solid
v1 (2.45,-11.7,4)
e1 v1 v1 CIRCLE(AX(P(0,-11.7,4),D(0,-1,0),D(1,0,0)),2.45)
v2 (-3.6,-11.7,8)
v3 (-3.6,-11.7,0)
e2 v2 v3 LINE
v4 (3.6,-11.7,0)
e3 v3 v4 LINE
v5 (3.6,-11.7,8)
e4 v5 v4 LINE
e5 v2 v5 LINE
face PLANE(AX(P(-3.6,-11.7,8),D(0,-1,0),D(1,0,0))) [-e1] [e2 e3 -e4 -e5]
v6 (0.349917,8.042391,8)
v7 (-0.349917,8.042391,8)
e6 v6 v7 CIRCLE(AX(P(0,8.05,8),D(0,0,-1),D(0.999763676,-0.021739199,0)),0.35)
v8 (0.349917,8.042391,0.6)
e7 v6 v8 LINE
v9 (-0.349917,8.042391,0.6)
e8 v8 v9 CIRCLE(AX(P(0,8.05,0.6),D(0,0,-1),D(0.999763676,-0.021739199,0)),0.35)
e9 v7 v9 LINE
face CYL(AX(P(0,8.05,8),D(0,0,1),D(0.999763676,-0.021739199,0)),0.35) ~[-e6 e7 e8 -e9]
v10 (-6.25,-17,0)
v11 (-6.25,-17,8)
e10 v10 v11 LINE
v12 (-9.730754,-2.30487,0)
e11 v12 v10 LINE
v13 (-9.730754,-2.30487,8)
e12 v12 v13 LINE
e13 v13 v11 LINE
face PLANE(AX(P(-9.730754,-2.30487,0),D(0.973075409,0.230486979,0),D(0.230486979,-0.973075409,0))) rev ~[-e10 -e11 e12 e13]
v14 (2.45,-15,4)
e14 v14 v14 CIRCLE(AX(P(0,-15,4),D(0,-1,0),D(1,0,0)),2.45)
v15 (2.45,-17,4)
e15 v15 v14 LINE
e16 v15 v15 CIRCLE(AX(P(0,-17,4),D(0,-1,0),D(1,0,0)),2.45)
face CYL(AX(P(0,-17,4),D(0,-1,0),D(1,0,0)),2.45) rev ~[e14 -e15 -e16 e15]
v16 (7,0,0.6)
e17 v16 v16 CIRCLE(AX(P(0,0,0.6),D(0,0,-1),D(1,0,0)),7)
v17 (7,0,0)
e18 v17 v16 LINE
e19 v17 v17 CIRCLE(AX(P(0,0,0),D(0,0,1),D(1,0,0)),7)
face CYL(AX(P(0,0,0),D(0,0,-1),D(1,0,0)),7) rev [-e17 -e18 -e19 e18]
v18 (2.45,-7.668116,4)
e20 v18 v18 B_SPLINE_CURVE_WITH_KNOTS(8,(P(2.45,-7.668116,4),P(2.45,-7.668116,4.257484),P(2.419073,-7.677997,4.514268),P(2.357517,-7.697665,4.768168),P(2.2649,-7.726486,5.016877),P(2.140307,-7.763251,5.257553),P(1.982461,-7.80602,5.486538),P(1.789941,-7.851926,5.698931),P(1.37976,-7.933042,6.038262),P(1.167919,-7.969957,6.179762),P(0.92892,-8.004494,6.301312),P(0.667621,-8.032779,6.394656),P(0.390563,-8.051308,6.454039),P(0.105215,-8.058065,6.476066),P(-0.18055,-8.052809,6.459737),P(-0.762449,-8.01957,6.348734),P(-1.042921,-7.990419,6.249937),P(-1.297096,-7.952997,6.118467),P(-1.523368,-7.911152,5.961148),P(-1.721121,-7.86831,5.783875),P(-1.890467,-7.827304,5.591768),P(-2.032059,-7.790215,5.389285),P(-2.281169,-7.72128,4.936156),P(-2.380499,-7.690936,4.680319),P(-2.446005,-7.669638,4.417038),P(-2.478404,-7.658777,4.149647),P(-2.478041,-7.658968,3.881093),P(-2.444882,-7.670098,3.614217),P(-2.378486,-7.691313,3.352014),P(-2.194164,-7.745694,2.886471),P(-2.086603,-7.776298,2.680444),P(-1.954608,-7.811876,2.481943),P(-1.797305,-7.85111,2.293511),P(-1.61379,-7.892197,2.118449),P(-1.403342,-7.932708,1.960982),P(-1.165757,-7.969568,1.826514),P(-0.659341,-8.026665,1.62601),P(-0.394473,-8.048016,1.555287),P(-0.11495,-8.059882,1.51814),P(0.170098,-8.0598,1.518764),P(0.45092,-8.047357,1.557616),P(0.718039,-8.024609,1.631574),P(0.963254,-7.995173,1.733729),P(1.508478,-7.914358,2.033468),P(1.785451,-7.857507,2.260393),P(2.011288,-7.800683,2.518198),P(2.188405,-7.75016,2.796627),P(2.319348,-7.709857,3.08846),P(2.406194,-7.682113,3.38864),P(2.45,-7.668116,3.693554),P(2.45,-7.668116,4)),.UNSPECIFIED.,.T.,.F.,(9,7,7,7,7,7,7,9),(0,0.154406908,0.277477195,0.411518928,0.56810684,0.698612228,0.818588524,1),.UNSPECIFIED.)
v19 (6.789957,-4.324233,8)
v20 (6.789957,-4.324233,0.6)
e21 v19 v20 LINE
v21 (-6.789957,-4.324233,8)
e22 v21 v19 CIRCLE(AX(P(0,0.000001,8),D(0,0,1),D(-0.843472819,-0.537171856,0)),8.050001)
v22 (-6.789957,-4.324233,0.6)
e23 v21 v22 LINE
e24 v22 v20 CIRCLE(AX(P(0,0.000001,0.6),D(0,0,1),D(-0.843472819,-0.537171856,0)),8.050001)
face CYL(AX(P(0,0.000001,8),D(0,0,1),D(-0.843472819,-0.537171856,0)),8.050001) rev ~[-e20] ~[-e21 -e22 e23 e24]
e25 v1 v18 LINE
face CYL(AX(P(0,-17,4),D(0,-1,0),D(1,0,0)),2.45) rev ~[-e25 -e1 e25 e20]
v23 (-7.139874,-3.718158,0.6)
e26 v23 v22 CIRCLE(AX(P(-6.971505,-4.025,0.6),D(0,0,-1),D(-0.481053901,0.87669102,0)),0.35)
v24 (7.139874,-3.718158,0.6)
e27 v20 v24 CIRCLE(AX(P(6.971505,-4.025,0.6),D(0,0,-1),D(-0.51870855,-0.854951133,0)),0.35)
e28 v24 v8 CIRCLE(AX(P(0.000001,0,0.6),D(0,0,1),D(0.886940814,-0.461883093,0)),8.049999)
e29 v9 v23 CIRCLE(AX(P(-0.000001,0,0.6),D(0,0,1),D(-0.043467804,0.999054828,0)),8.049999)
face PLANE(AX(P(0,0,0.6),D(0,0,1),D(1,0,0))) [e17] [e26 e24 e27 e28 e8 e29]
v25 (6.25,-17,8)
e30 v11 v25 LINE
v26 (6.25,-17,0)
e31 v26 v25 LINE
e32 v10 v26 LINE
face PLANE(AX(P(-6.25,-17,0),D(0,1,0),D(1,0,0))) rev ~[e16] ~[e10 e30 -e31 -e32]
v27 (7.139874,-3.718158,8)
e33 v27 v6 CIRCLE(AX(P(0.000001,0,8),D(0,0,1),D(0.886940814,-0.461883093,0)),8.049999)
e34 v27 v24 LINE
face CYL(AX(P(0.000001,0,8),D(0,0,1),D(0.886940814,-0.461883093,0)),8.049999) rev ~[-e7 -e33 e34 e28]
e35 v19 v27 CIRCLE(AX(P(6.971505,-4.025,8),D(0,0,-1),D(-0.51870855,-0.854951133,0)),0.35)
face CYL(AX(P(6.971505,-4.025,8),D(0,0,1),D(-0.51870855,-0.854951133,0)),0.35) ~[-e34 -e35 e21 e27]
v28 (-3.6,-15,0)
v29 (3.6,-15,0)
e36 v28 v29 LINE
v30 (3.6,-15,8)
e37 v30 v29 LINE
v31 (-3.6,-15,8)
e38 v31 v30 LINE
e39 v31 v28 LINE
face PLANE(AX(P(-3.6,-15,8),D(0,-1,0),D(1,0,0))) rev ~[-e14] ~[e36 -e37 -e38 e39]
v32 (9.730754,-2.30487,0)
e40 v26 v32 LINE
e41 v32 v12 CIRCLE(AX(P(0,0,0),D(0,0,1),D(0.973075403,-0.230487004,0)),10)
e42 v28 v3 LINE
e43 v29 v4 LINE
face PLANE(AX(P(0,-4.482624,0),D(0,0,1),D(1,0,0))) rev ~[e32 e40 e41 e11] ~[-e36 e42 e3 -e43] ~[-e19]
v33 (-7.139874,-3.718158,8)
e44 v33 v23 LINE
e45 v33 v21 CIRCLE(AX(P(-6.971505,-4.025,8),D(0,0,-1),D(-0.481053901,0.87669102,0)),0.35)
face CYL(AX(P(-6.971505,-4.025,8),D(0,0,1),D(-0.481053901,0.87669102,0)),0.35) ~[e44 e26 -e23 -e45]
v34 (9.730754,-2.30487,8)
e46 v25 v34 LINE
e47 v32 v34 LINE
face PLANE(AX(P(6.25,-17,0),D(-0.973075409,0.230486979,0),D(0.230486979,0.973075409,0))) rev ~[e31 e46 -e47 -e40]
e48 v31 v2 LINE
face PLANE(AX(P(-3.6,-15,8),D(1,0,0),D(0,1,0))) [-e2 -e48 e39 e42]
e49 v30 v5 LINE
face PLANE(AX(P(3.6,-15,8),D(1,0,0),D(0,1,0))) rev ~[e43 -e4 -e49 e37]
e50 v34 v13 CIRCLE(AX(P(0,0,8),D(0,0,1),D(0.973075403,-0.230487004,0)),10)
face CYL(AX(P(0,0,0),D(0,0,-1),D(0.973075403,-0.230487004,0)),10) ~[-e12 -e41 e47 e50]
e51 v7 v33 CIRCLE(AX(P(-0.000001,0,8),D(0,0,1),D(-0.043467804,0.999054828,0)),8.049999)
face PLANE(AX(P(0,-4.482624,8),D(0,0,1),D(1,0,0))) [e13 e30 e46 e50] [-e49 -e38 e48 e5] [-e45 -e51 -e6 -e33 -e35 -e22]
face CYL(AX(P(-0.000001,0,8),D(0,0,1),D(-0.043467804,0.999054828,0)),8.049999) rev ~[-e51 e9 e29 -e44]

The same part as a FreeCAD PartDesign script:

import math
import FreeCAD as App
import Part
import Sketcher
from FreeCAD import Vector

doc = App.newDocument("Part")
params = doc.addObject("Spreadsheet::Sheet", "Params")
for row, (alias, value) in enumerate([
    ("sketch1_diameter", "14 mm"),
    ("sketch1_radius", "10 mm"),
    ("sketch1_width", "12.5 mm"),
    ("pad1_length", "8 mm"),
    ("sketch2_radius", "0.35 mm"),
    ("sketch2_radius2", "8.049999 mm"),
    ("pocket1_length", "7.4 mm"),
    ("sketch3_diameter", "4.9 mm"),
    ("pocket2_length", "12 mm"),
    ("sketch4_width", "7.2 mm"),
    ("sketch4_height", "3.3 mm"),
], start=1):
    params.set(f"A{row}", alias)
    params.set(f"B{row}", "=" + value)
    params.setAlias(f"B{row}", alias)

body = doc.addObject("PartDesign::Body", "Body")

sketch1 = body.newObject("Sketcher::SketchObject", "Sketch")
sketch1.AttachmentSupport = (doc.getObject("XY_Plane"), [""])
sketch1.MapMode = "FlatFace"
sketch1.addGeometry(Part.LineSegment(Vector(6, -17, 0), Vector(10, -2, 0)), False)
sketch1.addGeometry(Part.ArcOfCircle(Part.Circle(Vector(0, 0, 0), Vector(0, 0, 1), 10), math.radians(-13), math.radians(193)), False)
sketch1.addGeometry(Part.LineSegment(Vector(-10, -2, 0), Vector(-6, -17, 0)), False)
sketch1.addGeometry(Part.LineSegment(Vector(-6, -17, 0), Vector(6, -17, 0)), False)
sketch1.addGeometry(Part.Circle(Vector(0, 0, 0), Vector(0, 0, 1), 7), False)
sketch1.addConstraint(Sketcher.Constraint("Tangent", 0, 2, 1, 1))
sketch1.addConstraint(Sketcher.Constraint("Tangent", 1, 2, 2, 1))
sketch1.addConstraint(Sketcher.Constraint("Coincident", 2, 2, 3, 1))
sketch1.addConstraint(Sketcher.Constraint("Coincident", 3, 2, 0, 1))
sketch1.addConstraint(Sketcher.Constraint("Horizontal", 3))
sketch1.addConstraint(Sketcher.Constraint("Coincident", 1, 3, -1, 1))
sketch1.addConstraint(Sketcher.Constraint("Coincident", 4, 3, -1, 1))
sketch1.addConstraint(Sketcher.Constraint("Horizontal", 0, 2, 1, 2))
sketch1.addConstraint(Sketcher.Constraint("Diameter", 4, 14.0))
sketch1.addConstraint(Sketcher.Constraint("Radius", 1, 10.0))
sketch1.addConstraint(Sketcher.Constraint("DistanceX", 3, 1, 3, 2, 12.5))
sketch1.addConstraint(Sketcher.Constraint("DistanceY", 2, 2, -1, 1, 17.0))
sketch1.setExpression("Constraints[8]", "Params.sketch1_diameter")
sketch1.setExpression("Constraints[9]", "Params.sketch1_radius")
sketch1.setExpression("Constraints[10]", "Params.sketch1_width")
pad1 = body.newObject("PartDesign::Pad", "Pad")
pad1.Profile = sketch1
pad1.setExpression("Length", "Params.pad1_length")

sketch2 = body.newObject("Sketcher::SketchObject", "Sketch001")
sketch2.AttachmentSupport = (doc.getObject("XY_Plane"), [""])
sketch2.MapMode = "FlatFace"
sketch2.AttachmentOffset = App.Placement(Vector(0, 0, 8), App.Rotation())
sketch2.addGeometry(Part.ArcOfCircle(Part.Circle(Vector(0, 8.05, 0), Vector(0, 0, 1), 0.35), math.radians(-179), math.radians(-1)), False)
sketch2.addGeometry(Part.ArcOfCircle(Part.Circle(Vector(0, 0, 0), Vector(0, 0, 1), 8.05), math.radians(92), math.radians(208)), False)
sketch2.addGeometry(Part.ArcOfCircle(Part.Circle(Vector(-6.97, -4.02, 0), Vector(0, 0, 1), 0.35), math.radians(-59), math.radians(119)), False)
sketch2.addGeometry(Part.ArcOfCircle(Part.Circle(Vector(0, 0, 0), Vector(0, 0, 1), 8.05), math.radians(-148), math.radians(-32)), False)
sketch2.addGeometry(Part.ArcOfCircle(Part.Circle(Vector(6.97, -4.02, 0), Vector(0, 0, 1), 0.35), math.radians(61), math.radians(239)), False)
sketch2.addGeometry(Part.ArcOfCircle(Part.Circle(Vector(0, 0, 0), Vector(0, 0, 1), 8.05), math.radians(-28), math.radians(88)), False)
sketch2.addConstraint(Sketcher.Constraint("Coincident", 0, 1, 1, 1))
sketch2.addConstraint(Sketcher.Constraint("Coincident", 1, 2, 2, 2))
sketch2.addConstraint(Sketcher.Constraint("Coincident", 2, 1, 3, 1))
sketch2.addConstraint(Sketcher.Constraint("Coincident", 3, 2, 4, 2))
sketch2.addConstraint(Sketcher.Constraint("Coincident", 4, 1, 5, 1))
sketch2.addConstraint(Sketcher.Constraint("Coincident", 5, 2, 0, 2))
sketch2.addConstraint(Sketcher.Constraint("Coincident", 1, 3, -1, 1))
sketch2.addConstraint(Sketcher.Constraint("Coincident", 3, 3, -1, 1))
sketch2.addConstraint(Sketcher.Constraint("Coincident", 5, 3, -1, 1))
sketch2.addConstraint(Sketcher.Constraint("Equal", 0, 2))
sketch2.addConstraint(Sketcher.Constraint("Equal", 1, 3))
sketch2.addConstraint(Sketcher.Constraint("Equal", 2, 4))
sketch2.addConstraint(Sketcher.Constraint("Equal", 3, 5))
sketch2.addConstraint(Sketcher.Constraint("Symmetric", 2, 3, 4, 3, -2))
sketch2.addConstraint(Sketcher.Constraint("PointOnObject", 0, 3, -2))
sketch2.addConstraint(Sketcher.Constraint("Radius", 0, 0.35))
sketch2.addConstraint(Sketcher.Constraint("Radius", 1, 8.049999))
sketch2.addConstraint(Sketcher.Constraint("DistanceY", -1, 1, 0, 3, 8.05))
sketch2.addConstraint(Sketcher.Constraint("DistanceY", 2, 3, -1, 1, 4.025))
sketch2.addConstraint(Sketcher.Constraint("DistanceY", 4, 1, -1, 1, 3.718158))
sketch2.setExpression("Constraints[15]", "Params.sketch2_radius")
sketch2.setExpression("Constraints[16]", "Params.sketch2_radius2")
pocket1 = body.newObject("PartDesign::Pocket", "Pocket")
pocket1.Profile = sketch2
pocket1.setExpression("Length", "Params.pocket1_length")

sketch3 = body.newObject("Sketcher::SketchObject", "Sketch002")
sketch3.AttachmentSupport = (doc.getObject("XZ_Plane"), [""])
sketch3.MapMode = "FlatFace"
sketch3.AttachmentOffset = App.Placement(Vector(0, 0, 17), App.Rotation())
sketch3.addGeometry(Part.Circle(Vector(0, 4, 0), Vector(0, 0, 1), 2.5), False)
sketch3.addConstraint(Sketcher.Constraint("PointOnObject", 0, 3, -2))
sketch3.addConstraint(Sketcher.Constraint("Diameter", 0, 4.9))
sketch3.addConstraint(Sketcher.Constraint("DistanceY", -1, 1, 0, 3, 4.0))
sketch3.setExpression("Constraints[1]", "Params.sketch3_diameter")
pocket2 = body.newObject("PartDesign::Pocket", "Pocket001")
pocket2.Profile = sketch3
pocket2.setExpression("Length", "Params.pocket2_length")

sketch4 = body.newObject("Sketcher::SketchObject", "Sketch003")
sketch4.AttachmentSupport = (doc.getObject("XY_Plane"), [""])
sketch4.MapMode = "FlatFace"
sketch4.AttachmentOffset = App.Placement(Vector(0, 0, 8), App.Rotation())
sketch4.addGeometry(Part.LineSegment(Vector(-3.6, -11.7, 0), Vector(-3.6, -15, 0)), False)
sketch4.addGeometry(Part.LineSegment(Vector(-3.6, -15, 0), Vector(3.6, -15, 0)), False)
sketch4.addGeometry(Part.LineSegment(Vector(3.6, -15, 0), Vector(3.6, -11.7, 0)), False)
sketch4.addGeometry(Part.LineSegment(Vector(3.6, -11.7, 0), Vector(-3.6, -11.7, 0)), False)
sketch4.addConstraint(Sketcher.Constraint("Coincident", 0, 2, 1, 1))
sketch4.addConstraint(Sketcher.Constraint("Coincident", 1, 2, 2, 1))
sketch4.addConstraint(Sketcher.Constraint("Coincident", 2, 2, 3, 1))
sketch4.addConstraint(Sketcher.Constraint("Coincident", 3, 2, 0, 1))
sketch4.addConstraint(Sketcher.Constraint("Vertical", 0))
sketch4.addConstraint(Sketcher.Constraint("Horizontal", 1))
sketch4.addConstraint(Sketcher.Constraint("Vertical", 2))
sketch4.addConstraint(Sketcher.Constraint("Horizontal", 3))
sketch4.addConstraint(Sketcher.Constraint("DistanceX", 1, 1, 1, 2, 7.2))
sketch4.addConstraint(Sketcher.Constraint("DistanceY", 0, 2, 0, 1, 3.3))
sketch4.addConstraint(Sketcher.Constraint("DistanceY", 0, 2, -1, 1, 15.0))
sketch4.addConstraint(Sketcher.Constraint("DistanceX", 0, 2, -1, 1, 3.6))
sketch4.setExpression("Constraints[8]", "Params.sketch4_width")
sketch4.setExpression("Constraints[9]", "Params.sketch4_height")
pocket3 = body.newObject("PartDesign::Pocket", "Pocket002")
pocket3.Profile = sketch4
pocket3.Type = "ThroughAll"

doc.recompute()
